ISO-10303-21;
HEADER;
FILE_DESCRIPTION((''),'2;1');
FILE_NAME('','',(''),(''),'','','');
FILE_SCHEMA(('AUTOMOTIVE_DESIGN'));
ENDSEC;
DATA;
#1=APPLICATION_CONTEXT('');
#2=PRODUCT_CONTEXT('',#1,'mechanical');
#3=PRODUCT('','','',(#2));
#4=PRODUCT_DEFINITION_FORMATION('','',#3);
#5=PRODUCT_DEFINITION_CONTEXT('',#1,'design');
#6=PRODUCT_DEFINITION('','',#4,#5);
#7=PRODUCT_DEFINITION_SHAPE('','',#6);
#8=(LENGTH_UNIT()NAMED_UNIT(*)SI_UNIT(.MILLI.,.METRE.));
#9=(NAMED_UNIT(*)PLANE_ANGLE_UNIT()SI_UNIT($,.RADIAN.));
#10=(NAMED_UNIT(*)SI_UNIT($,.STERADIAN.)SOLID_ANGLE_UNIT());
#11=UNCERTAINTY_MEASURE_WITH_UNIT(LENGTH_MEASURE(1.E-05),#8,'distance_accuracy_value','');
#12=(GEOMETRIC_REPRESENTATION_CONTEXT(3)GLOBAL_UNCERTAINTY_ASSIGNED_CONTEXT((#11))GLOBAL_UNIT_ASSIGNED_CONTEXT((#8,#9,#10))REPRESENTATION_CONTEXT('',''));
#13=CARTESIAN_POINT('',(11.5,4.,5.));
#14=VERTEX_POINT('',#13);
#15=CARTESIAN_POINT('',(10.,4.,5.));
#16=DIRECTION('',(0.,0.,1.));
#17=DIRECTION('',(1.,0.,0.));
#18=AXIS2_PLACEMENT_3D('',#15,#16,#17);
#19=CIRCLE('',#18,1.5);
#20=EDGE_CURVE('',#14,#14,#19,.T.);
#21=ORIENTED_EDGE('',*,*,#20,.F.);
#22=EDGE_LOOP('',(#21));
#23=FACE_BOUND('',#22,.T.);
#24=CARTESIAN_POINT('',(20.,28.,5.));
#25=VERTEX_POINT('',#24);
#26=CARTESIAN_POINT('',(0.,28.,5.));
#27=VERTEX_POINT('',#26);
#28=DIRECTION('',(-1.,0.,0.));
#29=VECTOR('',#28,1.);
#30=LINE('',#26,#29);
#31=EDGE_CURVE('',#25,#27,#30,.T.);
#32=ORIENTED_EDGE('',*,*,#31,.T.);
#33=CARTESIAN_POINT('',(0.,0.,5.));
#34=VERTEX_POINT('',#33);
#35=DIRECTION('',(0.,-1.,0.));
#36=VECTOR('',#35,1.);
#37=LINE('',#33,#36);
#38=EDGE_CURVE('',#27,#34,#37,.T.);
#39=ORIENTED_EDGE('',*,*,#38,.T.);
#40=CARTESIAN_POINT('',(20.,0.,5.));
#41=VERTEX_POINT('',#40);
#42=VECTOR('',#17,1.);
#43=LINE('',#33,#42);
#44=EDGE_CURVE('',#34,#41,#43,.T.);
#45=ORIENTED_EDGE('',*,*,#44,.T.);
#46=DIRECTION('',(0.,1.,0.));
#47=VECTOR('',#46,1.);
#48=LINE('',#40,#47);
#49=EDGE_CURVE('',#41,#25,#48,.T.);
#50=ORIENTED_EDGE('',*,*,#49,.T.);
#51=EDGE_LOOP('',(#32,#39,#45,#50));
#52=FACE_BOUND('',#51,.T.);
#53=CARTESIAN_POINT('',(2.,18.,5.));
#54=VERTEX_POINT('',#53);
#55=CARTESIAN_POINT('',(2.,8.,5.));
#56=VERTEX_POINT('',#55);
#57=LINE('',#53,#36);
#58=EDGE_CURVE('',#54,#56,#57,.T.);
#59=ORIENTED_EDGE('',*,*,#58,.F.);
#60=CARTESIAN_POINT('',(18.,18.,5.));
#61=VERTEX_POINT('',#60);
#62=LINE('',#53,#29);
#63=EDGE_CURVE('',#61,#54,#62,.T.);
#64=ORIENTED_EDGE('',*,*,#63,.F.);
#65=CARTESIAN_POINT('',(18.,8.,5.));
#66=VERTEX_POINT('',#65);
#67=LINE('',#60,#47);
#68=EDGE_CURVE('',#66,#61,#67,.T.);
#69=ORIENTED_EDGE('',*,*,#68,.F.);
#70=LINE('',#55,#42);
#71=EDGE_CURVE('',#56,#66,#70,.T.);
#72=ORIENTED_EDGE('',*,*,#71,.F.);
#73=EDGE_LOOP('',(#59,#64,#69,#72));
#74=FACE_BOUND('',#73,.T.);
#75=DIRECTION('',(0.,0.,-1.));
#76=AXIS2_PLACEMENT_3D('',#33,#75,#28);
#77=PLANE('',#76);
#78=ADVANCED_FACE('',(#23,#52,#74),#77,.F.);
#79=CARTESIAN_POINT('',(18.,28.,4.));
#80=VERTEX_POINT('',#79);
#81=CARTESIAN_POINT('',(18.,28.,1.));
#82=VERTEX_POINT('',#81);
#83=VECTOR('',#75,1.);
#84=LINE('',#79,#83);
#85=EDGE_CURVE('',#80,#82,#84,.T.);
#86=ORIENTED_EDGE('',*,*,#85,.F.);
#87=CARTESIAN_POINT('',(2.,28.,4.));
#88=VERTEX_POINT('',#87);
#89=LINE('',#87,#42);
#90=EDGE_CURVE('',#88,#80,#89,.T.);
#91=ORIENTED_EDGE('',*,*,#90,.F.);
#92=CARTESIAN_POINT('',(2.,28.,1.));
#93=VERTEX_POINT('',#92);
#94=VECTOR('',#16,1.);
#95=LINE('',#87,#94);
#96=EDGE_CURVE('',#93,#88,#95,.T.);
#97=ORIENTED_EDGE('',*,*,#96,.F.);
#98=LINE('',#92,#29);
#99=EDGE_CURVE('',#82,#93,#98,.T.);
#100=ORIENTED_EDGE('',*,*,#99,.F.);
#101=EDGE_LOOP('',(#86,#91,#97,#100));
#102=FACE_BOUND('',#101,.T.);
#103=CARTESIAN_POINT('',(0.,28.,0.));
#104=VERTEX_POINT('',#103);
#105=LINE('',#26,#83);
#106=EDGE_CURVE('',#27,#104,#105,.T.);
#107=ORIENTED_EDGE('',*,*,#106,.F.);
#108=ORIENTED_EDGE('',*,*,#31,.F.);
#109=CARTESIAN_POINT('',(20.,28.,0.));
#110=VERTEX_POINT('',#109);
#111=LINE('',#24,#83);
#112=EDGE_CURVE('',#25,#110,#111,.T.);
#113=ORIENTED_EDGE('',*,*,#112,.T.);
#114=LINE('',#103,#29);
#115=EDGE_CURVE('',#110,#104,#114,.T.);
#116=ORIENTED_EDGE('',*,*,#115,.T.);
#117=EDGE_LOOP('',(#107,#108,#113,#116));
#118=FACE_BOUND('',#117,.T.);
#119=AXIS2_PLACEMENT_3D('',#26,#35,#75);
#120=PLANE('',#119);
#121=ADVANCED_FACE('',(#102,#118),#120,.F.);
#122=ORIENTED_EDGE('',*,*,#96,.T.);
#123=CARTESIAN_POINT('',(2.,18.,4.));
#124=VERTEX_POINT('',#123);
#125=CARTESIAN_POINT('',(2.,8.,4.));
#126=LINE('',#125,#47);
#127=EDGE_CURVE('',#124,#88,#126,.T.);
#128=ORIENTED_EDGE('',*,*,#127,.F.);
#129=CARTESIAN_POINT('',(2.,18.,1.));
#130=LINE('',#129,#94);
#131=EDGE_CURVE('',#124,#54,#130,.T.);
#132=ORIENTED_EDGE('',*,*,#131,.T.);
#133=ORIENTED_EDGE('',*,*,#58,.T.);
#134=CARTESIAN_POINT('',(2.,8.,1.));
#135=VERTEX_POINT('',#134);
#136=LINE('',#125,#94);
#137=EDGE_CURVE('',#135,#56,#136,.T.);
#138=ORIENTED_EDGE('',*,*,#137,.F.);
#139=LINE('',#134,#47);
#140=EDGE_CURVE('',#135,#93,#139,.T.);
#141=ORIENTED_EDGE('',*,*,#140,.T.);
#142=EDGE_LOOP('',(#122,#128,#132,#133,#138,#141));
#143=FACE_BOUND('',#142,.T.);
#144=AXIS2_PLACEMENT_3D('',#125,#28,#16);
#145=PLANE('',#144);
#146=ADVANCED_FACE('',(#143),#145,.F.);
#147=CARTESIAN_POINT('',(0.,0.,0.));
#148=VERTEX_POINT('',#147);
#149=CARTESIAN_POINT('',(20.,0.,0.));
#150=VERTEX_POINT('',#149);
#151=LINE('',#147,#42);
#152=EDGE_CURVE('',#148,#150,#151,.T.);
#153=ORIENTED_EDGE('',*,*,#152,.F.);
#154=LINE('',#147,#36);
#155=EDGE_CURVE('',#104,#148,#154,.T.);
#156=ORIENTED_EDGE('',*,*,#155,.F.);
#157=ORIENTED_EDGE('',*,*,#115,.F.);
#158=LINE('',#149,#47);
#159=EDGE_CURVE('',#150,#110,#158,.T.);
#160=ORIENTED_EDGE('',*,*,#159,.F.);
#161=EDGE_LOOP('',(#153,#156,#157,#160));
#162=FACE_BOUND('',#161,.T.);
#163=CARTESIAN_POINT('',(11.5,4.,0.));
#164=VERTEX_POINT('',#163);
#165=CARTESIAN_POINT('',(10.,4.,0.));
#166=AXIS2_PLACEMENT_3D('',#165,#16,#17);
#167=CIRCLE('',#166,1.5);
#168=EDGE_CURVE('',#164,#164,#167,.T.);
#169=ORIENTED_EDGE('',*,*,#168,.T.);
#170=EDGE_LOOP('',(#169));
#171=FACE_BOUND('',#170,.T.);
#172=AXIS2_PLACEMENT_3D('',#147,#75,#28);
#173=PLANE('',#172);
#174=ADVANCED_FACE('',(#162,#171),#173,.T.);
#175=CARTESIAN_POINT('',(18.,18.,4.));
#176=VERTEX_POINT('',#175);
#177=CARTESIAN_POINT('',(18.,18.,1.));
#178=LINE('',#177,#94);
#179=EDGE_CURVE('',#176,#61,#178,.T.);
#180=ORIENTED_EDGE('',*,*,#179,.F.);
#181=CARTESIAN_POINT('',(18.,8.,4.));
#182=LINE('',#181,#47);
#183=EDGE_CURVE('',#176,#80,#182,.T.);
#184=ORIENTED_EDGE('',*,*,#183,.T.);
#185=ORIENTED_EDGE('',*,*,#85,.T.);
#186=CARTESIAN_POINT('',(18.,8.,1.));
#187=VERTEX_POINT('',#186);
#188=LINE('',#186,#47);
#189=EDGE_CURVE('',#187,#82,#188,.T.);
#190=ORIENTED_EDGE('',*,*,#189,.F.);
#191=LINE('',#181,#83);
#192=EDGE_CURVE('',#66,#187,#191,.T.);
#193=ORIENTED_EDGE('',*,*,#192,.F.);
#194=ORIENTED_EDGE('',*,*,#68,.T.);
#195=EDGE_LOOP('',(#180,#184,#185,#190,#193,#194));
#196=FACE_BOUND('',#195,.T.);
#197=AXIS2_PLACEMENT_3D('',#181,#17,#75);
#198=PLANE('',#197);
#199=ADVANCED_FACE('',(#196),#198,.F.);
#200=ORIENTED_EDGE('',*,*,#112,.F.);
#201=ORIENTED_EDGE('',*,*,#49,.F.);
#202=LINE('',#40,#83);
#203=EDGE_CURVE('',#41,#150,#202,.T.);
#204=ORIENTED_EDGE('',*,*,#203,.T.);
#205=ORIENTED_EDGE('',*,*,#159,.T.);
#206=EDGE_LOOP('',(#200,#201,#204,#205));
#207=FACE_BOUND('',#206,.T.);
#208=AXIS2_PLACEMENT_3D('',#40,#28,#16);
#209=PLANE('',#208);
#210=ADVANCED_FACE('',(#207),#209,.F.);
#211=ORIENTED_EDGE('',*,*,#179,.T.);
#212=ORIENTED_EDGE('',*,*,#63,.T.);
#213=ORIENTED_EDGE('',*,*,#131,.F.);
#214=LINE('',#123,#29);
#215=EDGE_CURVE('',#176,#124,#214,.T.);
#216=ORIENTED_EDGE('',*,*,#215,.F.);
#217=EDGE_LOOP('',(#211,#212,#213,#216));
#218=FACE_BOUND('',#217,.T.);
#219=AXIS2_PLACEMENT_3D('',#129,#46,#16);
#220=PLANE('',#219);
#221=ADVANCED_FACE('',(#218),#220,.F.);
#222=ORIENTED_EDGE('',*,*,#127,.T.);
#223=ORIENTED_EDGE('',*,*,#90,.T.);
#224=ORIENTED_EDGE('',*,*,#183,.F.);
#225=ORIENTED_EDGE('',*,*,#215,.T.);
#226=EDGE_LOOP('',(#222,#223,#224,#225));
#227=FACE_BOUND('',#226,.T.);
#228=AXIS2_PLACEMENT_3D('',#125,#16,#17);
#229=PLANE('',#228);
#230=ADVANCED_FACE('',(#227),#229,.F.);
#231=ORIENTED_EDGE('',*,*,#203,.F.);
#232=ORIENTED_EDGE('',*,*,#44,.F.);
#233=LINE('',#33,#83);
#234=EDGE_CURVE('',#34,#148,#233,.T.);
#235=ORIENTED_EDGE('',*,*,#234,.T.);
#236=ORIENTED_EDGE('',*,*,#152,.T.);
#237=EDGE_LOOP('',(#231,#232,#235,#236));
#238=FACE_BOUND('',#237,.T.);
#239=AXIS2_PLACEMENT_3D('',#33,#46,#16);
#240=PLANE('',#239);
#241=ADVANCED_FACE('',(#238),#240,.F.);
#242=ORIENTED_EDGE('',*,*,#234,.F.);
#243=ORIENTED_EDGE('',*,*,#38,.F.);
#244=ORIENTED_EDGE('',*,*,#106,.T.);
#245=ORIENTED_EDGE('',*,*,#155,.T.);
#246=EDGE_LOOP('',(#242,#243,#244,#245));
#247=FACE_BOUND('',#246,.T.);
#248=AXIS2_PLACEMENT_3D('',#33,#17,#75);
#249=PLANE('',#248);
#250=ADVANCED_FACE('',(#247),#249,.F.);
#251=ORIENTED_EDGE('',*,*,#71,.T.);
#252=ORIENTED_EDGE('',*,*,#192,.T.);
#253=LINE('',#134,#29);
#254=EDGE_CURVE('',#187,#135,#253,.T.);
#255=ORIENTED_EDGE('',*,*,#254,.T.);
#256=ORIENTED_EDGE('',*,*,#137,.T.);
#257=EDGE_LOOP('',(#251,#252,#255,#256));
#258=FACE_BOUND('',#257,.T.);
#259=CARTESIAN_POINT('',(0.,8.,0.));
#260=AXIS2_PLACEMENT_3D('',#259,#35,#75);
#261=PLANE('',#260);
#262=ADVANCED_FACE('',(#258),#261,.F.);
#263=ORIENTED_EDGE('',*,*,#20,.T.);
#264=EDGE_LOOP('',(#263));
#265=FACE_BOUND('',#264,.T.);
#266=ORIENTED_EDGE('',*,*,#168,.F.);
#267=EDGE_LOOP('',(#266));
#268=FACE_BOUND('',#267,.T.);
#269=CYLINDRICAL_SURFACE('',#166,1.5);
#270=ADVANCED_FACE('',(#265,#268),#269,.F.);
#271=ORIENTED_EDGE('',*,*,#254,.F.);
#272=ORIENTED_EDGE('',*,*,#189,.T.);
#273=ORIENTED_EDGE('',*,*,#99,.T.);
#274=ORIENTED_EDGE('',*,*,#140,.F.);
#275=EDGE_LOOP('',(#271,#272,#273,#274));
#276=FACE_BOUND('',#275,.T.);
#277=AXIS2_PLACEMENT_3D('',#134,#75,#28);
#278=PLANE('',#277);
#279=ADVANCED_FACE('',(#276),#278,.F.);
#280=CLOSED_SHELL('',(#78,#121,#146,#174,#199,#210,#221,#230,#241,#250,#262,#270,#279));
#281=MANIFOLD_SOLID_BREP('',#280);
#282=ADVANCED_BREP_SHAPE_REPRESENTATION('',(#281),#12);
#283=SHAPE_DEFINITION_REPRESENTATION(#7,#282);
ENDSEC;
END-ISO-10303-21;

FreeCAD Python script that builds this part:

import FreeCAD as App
import Part
import Sketcher

V = App.Vector
Q = App.Units.Quantity

doc = App.newDocument("Part")
params = doc.addObject("Spreadsheet::Sheet", "Params")
for row, (alias, value) in enumerate([
    ("sketch1_width", "20 mm"),
    ("sketch1_height", "28 mm"),
    ("pad1_length", "5 mm"),
    ("sketch2_diameter", "3 mm"),
    ("pocket1_length", "5 mm"),
    ("sketch3_width", "16 mm"),
    ("sketch3_height", "3 mm"),
    ("pocket2_length", "20 mm"),
    ("sketch4_width", "16 mm"),
    ("sketch4_height", "10 mm"),
    ("pocket3_length", "4 mm"),
], start=1):
    params.set(f"A{row}", alias)
    params.set(f"B{row}", "=" + value)
    params.setAlias(f"B{row}", alias)

body = doc.addObject("PartDesign::Body", "Body")

# Sketch on XY plane
sketch1 = body.newObject("Sketcher::SketchObject", "Sketch")
sketch1.AttachmentSupport = (doc.getObject("XY_Plane"), [""])
sketch1.MapMode = "FlatFace"
sketch1.addGeometry([
    Part.LineSegment(V(0, 28, 0), V(0, 0, 0)),
    Part.LineSegment(V(0, 0, 0), V(20, 0, 0)),
    Part.LineSegment(V(20, 0, 0), V(20, 28, 0)),
    Part.LineSegment(V(20, 28, 0), V(0, 28, 0)),
], False)
sketch1.addConstraint([
    Sketcher.Constraint("Coincident", 0, 2, 1, 1),
    Sketcher.Constraint("Coincident", 1, 2, 2, 1),
    Sketcher.Constraint("Coincident", 2, 2, 3, 1),
    Sketcher.Constraint("Coincident", 3, 2, 0, 1),
    Sketcher.Constraint("Vertical", 0),
    Sketcher.Constraint("Horizontal", 1),
    Sketcher.Constraint("Vertical", 2),
    Sketcher.Constraint("Horizontal", 3),
    Sketcher.Constraint("Coincident", 0, 2, -1, 1),
    Sketcher.Constraint("DistanceX", 1, 1, 1, 2, Q("20 mm")),
    Sketcher.Constraint("DistanceY", 0, 2, 0, 1, Q("28 mm")),
])
sketch1.setExpression("Constraints[9]", "Params.sketch1_width")
sketch1.setExpression("Constraints[10]", "Params.sketch1_height")
pad1 = body.newObject("PartDesign::Pad", "Pad")
pad1.Profile = sketch1
pad1.setExpression("Length", "Params.pad1_length")

# Sketch on XY plane
sketch2 = body.newObject("Sketcher::SketchObject", "Sketch001")
sketch2.AttachmentSupport = (doc.getObject("XY_Plane"), [""])
sketch2.MapMode = "FlatFace"
sketch2.AttachmentOffset = App.Placement(V(0, 0, 5), App.Rotation())
sketch2.addGeometry(Part.Circle(V(10, 4, 0), V(0, 0, 1), 1.5), False)
sketch2.addConstraint([
    Sketcher.Constraint("Diameter", 0, Q("3 mm")),
    Sketcher.Constraint("DistanceX", -1, 1, 0, 3, Q("10 mm")),
    Sketcher.Constraint("DistanceY", -1, 1, 0, 3, Q("4 mm")),
])
sketch2.setExpression("Constraints[0]", "Params.sketch2_diameter")
pocket1 = body.newObject("PartDesign::Pocket", "Pocket")
pocket1.Profile = sketch2
pocket1.setExpression("Length", "Params.pocket1_length")

# Sketch on XZ plane
sketch3 = body.newObject("Sketcher::SketchObject", "Sketch002")
sketch3.AttachmentSupport = (doc.getObject("XZ_Plane"), [""])
sketch3.MapMode = "FlatFace"
sketch3.AttachmentOffset = App.Placement(V(0, 0, -28), App.Rotation())
sketch3.addGeometry([
    Part.LineSegment(V(2, 1, 0), V(2, 4, 0)),
    Part.LineSegment(V(2, 4, 0), V(18, 4, 0)),
    Part.LineSegment(V(18, 4, 0), V(18, 1, 0)),
    Part.LineSegment(V(18, 1, 0), V(2, 1, 0)),
], False)
sketch3.addConstraint([
    Sketcher.Constraint("Coincident", 0, 2, 1, 1),
    Sketcher.Constraint("Coincident", 1, 2, 2, 1),
    Sketcher.Constraint("Coincident", 2, 2, 3, 1),
    Sketcher.Constraint("Coincident", 3, 2, 0, 1),
    Sketcher.Constraint("Vertical", 0),
    Sketcher.Constraint("Horizontal", 1),
    Sketcher.Constraint("Vertical", 2),
    Sketcher.Constraint("Horizontal", 3),
    Sketcher.Constraint("DistanceX", 1, 1, 1, 2, Q("16 mm")),
    Sketcher.Constraint("DistanceY", 0, 1, 0, 2, Q("3 mm")),
    Sketcher.Constraint("DistanceX", -1, 1, 0, 2, Q("2 mm")),
    Sketcher.Constraint("DistanceY", -1, 1, 0, 2, Q("4 mm")),
])
sketch3.setExpression("Constraints[8]", "Params.sketch3_width")
sketch3.setExpression("Constraints[9]", "Params.sketch3_height")
pocket2 = body.newObject("PartDesign::Pocket", "Pocket001")
pocket2.Profile = sketch3
pocket2.setExpression("Length", "Params.pocket2_length")
pocket2.Reversed = True

# Sketch on XY plane
sketch4 = body.newObject("Sketcher::SketchObject", "Sketch003")
sketch4.AttachmentSupport = (doc.getObject("XY_Plane"), [""])
sketch4.MapMode = "FlatFace"
sketch4.AttachmentOffset = App.Placement(V(0, 0, 5), App.Rotation())
sketch4.addGeometry([
    Part.LineSegment(V(2, 18, 0), V(2, 8, 0)),
    Part.LineSegment(V(2, 8, 0), V(18, 8, 0)),
    Part.LineSegment(V(18, 8, 0), V(18, 18, 0)),
    Part.LineSegment(V(18, 18, 0), V(2, 18, 0)),
], False)
sketch4.addConstraint([
    Sketcher.Constraint("Coincident", 0, 2, 1, 1),
    Sketcher.Constraint("Coincident", 1, 2, 2, 1),
    Sketcher.Constraint("Coincident", 2, 2, 3, 1),
    Sketcher.Constraint("Coincident", 3, 2, 0, 1),
    Sketcher.Constraint("Vertical", 0),
    Sketcher.Constraint("Horizontal", 1),
    Sketcher.Constraint("Vertical", 2),
    Sketcher.Constraint("Horizontal", 3),
    Sketcher.Constraint("DistanceX", 1, 1, 1, 2, Q("16 mm")),
    Sketcher.Constraint("DistanceY", 0, 2, 0, 1, Q("10 mm")),
    Sketcher.Constraint("DistanceX", -1, 1, 0, 2, Q("2 mm")),
    Sketcher.Constraint("DistanceY", -1, 1, 0, 2, Q("8 mm")),
])
sketch4.setExpression("Constraints[8]", "Params.sketch4_width")
sketch4.setExpression("Constraints[9]", "Params.sketch4_height")
pocket3 = body.newObject("PartDesign::Pocket", "Pocket002")
pocket3.Profile = sketch4
pocket3.setExpression("Length", "Params.pocket3_length")

doc.recompute()
